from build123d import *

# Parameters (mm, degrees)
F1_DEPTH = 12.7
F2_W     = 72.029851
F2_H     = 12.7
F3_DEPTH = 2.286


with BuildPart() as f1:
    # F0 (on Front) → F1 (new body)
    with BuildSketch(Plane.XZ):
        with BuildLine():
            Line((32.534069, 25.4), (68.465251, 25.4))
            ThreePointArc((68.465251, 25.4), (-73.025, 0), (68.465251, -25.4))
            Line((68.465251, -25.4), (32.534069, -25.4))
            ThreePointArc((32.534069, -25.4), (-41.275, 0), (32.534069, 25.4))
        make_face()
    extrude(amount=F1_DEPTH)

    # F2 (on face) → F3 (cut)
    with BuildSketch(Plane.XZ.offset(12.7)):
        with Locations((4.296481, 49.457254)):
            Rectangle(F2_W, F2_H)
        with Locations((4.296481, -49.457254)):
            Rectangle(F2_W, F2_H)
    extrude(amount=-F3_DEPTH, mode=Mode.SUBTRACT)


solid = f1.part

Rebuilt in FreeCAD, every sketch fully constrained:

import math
import FreeCAD as App
import Part
import Sketcher
from FreeCAD import Vector
Q = App.Units.Quantity


def add_polygon(sketch, points):
    """Adds a closed chain of lines whose ends are joined by coincident constraints."""
    first, n = sketch.GeometryCount, len(points)
    for a, b in zip(points, points[1:] + points[:1]):
        sketch.addGeometry(Part.LineSegment(App.Vector(*a, 0), App.Vector(*b, 0)), False)
    for i in range(n):
        sketch.addConstraint(Sketcher.Constraint("Coincident", first + i, 2, first + (i + 1) % n, 1))

doc = App.newDocument("Part")
body = doc.addObject("PartDesign::Body", "Body")

# Sketch on XZ plane
sketch1 = body.newObject("Sketcher::SketchObject", "Sketch")
sketch1.AttachmentSupport = (doc.getObject("XZ_Plane"), [""])
sketch1.MapMode = "FlatFace"
sketch1.addGeometry([
    Part.LineSegment(Vector(32.534069, 25.4, 0), Vector(68.465251, 25.4, 0)),
    Part.ArcOfCircle(Part.Circle(Vector(0, 0, 0), Vector(0, 0, 1), 73.025), math.radians(20.354406), math.radians(339.645594)),
    Part.LineSegment(Vector(68.465251, -25.4, 0), Vector(32.534069, -25.4, 0)),
    Part.ArcOfCircle(Part.Circle(Vector(0, 0, 0), Vector(0, 0, 1), 41.275), math.radians(37.979872), math.radians(322.020128)),
], False)
sketch1.addConstraint([
    Sketcher.Constraint("Coincident", 0, 2, 1, 1),
    Sketcher.Constraint("Coincident", 1, 2, 2, 1),
    Sketcher.Constraint("Coincident", 2, 2, 3, 2),
    Sketcher.Constraint("Coincident", 3, 1, 0, 1),
    Sketcher.Constraint("Horizontal", 0),
    Sketcher.Constraint("Horizontal", 2),
    Sketcher.Constraint("Coincident", 1, 3, -1, 1),
    Sketcher.Constraint("Coincident", 3, 3, -1, 1),
    Sketcher.Constraint("Vertical", 0, 2, 1, 2),
    Sketcher.Constraint("DistanceY", -1, 1, 0, 2, Q("1 in")),
    Sketcher.Constraint("Radius", 1, Q("2.875 in")),
    Sketcher.Constraint("Radius", 3, Q("1.625 in")),
])
pad1 = body.newObject("PartDesign::Pad", "Pad")
pad1.Profile = sketch1
pad1.Length = Q("0.5 in")

# Sketch on XZ plane
sketch2 = body.newObject("Sketcher::SketchObject", "Sketch001")
sketch2.AttachmentSupport = (doc.getObject("XZ_Plane"), [""])
sketch2.MapMode = "FlatFace"
sketch2.AttachmentOffset = App.Placement(Vector(0, 0, 0.5 * 25.4), App.Rotation())
add_polygon(sketch2, [(-31.718445, 55.807254), (-31.718445, 43.107254), (40.311406, 43.107254), (40.311406, 55.807254)])  # lines 0-3
add_polygon(sketch2, [(-31.718445, -43.107254), (-31.718445, -55.807254), (40.311406, -55.807254), (40.311406, -43.107254)])  # lines 4-7
sketch2.addConstraint([
    Sketcher.Constraint("Vertical", 0),
    Sketcher.Constraint("Horizontal", 1),
    Sketcher.Constraint("Vertical", 2),
    Sketcher.Constraint("Horizontal", 3),
    Sketcher.Constraint("Vertical", 4),
    Sketcher.Constraint("Horizontal", 5),
    Sketcher.Constraint("Vertical", 6),
    Sketcher.Constraint("Horizontal", 7),
    Sketcher.Constraint("Symmetric", 3, 2, 4, 2, -1),
    Sketcher.Constraint("Symmetric", 1, 2, 6, 2, -1),
    Sketcher.Constraint("DistanceY", 0, 2, 0, 1, Q("0.5 in")),
    Sketcher.Constraint("DistanceX", 1, 1, 1, 2, 72.029851),
    Sketcher.Constraint("DistanceY", 4, 2, 3, 2, 111.614508),
    Sketcher.Constraint("DistanceX", 0, 2, -1, 1, 31.718445),
])
pocket1 = body.newObject("PartDesign::Pocket", "Pocket")
pocket1.Profile = sketch2
pocket1.Length = Q("0.09 in")

doc.recompute()
